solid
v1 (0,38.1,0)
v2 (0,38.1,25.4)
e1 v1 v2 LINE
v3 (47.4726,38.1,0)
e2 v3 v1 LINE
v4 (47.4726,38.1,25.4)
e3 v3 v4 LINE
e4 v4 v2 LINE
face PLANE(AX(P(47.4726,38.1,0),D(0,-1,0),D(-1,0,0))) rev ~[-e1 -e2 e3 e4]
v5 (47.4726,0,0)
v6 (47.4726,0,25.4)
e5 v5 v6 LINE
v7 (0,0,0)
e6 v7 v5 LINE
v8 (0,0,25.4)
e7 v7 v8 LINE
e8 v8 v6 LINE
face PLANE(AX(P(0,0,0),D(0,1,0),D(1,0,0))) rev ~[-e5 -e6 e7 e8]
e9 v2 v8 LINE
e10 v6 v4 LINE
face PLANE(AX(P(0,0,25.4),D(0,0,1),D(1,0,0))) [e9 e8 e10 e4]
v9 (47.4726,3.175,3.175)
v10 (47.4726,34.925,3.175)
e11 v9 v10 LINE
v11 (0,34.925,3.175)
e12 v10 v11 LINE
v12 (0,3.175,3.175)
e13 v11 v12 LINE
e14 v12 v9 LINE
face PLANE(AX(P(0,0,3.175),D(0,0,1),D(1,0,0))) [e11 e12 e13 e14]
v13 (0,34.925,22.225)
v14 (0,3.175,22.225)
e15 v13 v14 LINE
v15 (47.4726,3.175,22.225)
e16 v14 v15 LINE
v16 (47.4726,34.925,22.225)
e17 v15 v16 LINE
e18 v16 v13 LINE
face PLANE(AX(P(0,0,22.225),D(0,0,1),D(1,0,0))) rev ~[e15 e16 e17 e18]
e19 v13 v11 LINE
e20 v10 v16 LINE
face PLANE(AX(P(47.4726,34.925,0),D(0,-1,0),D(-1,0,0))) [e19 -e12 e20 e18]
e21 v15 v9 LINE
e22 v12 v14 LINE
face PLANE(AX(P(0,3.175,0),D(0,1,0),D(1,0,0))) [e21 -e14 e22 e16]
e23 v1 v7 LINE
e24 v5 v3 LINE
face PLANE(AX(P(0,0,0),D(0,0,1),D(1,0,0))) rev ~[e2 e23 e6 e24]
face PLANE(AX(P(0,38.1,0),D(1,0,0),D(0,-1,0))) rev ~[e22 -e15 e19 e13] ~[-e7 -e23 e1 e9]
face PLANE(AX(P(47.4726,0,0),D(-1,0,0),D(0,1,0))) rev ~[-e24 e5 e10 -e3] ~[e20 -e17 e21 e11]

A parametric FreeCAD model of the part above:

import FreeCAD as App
import Part
import Sketcher

V = App.Vector
Q = App.Units.Quantity


def faces_at(feature, points):
    """Names of the faces that lie closest to the given points."""
    faces = feature.Shape.Faces
    near = lambda p: min(range(len(faces)), key=lambda i: faces[i].distToShape(Part.Vertex(*p))[0])
    return sorted({f"Face{near(p) + 1}" for p in points})

doc = App.newDocument("Part")
body = doc.addObject("PartDesign::Body", "Body")

# Sketch on XY plane
sketch1 = doc.addObject("Sketcher::SketchObject", "Sketch")
body.addObject(sketch1)
sketch1.AttachmentSupport = (doc.XY_Plane, [""])
sketch1.MapMode = "FlatFace"
sketch1.addGeometry([
    Part.LineSegment(V(0, 38, 0), V(0, 0, 0)),
    Part.LineSegment(V(0, 0, 0), V(47, 0, 0)),
    Part.LineSegment(V(47, 0, 0), V(47, 38, 0)),
    Part.LineSegment(V(47, 38, 0), V(0, 38, 0)),
], False)
sketch1.addConstraint([
    Sketcher.Constraint("Coincident", 0, 2, 1, 1),
    Sketcher.Constraint("Coincident", 1, 2, 2, 1),
    Sketcher.Constraint("Coincident", 2, 2, 3, 1),
    Sketcher.Constraint("Coincident", 3, 2, 0, 1),
    Sketcher.Constraint("Vertical", 0),
    Sketcher.Constraint("Horizontal", 1),
    Sketcher.Constraint("Vertical", 2),
    Sketcher.Constraint("Horizontal", 3),
    Sketcher.Constraint("Coincident", 0, 2, -1, 1),
    Sketcher.Constraint("DistanceY", 0, 2, 0, 1, Q("1.5 in")),
    Sketcher.Constraint("DistanceX", 1, 1, 1, 2, Q("1.869 in")),
])
pad1 = doc.addObject("PartDesign::Pad", "Pad")
body.addObject(pad1)
pad1.Profile = sketch1
pad1.Length = Q("1 in")
doc.recompute()

thickness = doc.addObject("PartDesign::Thickness", "Thickness")
body.addObject(thickness)
thickness.Base = (pad1, faces_at(pad1, [(0, 25.4, 8.467), (47.473, 12.7, 8.467)]))
thickness.Value = Q("0.125 in")
thickness.Reversed = True
thickness.Join = "Intersection"

doc.recompute()
